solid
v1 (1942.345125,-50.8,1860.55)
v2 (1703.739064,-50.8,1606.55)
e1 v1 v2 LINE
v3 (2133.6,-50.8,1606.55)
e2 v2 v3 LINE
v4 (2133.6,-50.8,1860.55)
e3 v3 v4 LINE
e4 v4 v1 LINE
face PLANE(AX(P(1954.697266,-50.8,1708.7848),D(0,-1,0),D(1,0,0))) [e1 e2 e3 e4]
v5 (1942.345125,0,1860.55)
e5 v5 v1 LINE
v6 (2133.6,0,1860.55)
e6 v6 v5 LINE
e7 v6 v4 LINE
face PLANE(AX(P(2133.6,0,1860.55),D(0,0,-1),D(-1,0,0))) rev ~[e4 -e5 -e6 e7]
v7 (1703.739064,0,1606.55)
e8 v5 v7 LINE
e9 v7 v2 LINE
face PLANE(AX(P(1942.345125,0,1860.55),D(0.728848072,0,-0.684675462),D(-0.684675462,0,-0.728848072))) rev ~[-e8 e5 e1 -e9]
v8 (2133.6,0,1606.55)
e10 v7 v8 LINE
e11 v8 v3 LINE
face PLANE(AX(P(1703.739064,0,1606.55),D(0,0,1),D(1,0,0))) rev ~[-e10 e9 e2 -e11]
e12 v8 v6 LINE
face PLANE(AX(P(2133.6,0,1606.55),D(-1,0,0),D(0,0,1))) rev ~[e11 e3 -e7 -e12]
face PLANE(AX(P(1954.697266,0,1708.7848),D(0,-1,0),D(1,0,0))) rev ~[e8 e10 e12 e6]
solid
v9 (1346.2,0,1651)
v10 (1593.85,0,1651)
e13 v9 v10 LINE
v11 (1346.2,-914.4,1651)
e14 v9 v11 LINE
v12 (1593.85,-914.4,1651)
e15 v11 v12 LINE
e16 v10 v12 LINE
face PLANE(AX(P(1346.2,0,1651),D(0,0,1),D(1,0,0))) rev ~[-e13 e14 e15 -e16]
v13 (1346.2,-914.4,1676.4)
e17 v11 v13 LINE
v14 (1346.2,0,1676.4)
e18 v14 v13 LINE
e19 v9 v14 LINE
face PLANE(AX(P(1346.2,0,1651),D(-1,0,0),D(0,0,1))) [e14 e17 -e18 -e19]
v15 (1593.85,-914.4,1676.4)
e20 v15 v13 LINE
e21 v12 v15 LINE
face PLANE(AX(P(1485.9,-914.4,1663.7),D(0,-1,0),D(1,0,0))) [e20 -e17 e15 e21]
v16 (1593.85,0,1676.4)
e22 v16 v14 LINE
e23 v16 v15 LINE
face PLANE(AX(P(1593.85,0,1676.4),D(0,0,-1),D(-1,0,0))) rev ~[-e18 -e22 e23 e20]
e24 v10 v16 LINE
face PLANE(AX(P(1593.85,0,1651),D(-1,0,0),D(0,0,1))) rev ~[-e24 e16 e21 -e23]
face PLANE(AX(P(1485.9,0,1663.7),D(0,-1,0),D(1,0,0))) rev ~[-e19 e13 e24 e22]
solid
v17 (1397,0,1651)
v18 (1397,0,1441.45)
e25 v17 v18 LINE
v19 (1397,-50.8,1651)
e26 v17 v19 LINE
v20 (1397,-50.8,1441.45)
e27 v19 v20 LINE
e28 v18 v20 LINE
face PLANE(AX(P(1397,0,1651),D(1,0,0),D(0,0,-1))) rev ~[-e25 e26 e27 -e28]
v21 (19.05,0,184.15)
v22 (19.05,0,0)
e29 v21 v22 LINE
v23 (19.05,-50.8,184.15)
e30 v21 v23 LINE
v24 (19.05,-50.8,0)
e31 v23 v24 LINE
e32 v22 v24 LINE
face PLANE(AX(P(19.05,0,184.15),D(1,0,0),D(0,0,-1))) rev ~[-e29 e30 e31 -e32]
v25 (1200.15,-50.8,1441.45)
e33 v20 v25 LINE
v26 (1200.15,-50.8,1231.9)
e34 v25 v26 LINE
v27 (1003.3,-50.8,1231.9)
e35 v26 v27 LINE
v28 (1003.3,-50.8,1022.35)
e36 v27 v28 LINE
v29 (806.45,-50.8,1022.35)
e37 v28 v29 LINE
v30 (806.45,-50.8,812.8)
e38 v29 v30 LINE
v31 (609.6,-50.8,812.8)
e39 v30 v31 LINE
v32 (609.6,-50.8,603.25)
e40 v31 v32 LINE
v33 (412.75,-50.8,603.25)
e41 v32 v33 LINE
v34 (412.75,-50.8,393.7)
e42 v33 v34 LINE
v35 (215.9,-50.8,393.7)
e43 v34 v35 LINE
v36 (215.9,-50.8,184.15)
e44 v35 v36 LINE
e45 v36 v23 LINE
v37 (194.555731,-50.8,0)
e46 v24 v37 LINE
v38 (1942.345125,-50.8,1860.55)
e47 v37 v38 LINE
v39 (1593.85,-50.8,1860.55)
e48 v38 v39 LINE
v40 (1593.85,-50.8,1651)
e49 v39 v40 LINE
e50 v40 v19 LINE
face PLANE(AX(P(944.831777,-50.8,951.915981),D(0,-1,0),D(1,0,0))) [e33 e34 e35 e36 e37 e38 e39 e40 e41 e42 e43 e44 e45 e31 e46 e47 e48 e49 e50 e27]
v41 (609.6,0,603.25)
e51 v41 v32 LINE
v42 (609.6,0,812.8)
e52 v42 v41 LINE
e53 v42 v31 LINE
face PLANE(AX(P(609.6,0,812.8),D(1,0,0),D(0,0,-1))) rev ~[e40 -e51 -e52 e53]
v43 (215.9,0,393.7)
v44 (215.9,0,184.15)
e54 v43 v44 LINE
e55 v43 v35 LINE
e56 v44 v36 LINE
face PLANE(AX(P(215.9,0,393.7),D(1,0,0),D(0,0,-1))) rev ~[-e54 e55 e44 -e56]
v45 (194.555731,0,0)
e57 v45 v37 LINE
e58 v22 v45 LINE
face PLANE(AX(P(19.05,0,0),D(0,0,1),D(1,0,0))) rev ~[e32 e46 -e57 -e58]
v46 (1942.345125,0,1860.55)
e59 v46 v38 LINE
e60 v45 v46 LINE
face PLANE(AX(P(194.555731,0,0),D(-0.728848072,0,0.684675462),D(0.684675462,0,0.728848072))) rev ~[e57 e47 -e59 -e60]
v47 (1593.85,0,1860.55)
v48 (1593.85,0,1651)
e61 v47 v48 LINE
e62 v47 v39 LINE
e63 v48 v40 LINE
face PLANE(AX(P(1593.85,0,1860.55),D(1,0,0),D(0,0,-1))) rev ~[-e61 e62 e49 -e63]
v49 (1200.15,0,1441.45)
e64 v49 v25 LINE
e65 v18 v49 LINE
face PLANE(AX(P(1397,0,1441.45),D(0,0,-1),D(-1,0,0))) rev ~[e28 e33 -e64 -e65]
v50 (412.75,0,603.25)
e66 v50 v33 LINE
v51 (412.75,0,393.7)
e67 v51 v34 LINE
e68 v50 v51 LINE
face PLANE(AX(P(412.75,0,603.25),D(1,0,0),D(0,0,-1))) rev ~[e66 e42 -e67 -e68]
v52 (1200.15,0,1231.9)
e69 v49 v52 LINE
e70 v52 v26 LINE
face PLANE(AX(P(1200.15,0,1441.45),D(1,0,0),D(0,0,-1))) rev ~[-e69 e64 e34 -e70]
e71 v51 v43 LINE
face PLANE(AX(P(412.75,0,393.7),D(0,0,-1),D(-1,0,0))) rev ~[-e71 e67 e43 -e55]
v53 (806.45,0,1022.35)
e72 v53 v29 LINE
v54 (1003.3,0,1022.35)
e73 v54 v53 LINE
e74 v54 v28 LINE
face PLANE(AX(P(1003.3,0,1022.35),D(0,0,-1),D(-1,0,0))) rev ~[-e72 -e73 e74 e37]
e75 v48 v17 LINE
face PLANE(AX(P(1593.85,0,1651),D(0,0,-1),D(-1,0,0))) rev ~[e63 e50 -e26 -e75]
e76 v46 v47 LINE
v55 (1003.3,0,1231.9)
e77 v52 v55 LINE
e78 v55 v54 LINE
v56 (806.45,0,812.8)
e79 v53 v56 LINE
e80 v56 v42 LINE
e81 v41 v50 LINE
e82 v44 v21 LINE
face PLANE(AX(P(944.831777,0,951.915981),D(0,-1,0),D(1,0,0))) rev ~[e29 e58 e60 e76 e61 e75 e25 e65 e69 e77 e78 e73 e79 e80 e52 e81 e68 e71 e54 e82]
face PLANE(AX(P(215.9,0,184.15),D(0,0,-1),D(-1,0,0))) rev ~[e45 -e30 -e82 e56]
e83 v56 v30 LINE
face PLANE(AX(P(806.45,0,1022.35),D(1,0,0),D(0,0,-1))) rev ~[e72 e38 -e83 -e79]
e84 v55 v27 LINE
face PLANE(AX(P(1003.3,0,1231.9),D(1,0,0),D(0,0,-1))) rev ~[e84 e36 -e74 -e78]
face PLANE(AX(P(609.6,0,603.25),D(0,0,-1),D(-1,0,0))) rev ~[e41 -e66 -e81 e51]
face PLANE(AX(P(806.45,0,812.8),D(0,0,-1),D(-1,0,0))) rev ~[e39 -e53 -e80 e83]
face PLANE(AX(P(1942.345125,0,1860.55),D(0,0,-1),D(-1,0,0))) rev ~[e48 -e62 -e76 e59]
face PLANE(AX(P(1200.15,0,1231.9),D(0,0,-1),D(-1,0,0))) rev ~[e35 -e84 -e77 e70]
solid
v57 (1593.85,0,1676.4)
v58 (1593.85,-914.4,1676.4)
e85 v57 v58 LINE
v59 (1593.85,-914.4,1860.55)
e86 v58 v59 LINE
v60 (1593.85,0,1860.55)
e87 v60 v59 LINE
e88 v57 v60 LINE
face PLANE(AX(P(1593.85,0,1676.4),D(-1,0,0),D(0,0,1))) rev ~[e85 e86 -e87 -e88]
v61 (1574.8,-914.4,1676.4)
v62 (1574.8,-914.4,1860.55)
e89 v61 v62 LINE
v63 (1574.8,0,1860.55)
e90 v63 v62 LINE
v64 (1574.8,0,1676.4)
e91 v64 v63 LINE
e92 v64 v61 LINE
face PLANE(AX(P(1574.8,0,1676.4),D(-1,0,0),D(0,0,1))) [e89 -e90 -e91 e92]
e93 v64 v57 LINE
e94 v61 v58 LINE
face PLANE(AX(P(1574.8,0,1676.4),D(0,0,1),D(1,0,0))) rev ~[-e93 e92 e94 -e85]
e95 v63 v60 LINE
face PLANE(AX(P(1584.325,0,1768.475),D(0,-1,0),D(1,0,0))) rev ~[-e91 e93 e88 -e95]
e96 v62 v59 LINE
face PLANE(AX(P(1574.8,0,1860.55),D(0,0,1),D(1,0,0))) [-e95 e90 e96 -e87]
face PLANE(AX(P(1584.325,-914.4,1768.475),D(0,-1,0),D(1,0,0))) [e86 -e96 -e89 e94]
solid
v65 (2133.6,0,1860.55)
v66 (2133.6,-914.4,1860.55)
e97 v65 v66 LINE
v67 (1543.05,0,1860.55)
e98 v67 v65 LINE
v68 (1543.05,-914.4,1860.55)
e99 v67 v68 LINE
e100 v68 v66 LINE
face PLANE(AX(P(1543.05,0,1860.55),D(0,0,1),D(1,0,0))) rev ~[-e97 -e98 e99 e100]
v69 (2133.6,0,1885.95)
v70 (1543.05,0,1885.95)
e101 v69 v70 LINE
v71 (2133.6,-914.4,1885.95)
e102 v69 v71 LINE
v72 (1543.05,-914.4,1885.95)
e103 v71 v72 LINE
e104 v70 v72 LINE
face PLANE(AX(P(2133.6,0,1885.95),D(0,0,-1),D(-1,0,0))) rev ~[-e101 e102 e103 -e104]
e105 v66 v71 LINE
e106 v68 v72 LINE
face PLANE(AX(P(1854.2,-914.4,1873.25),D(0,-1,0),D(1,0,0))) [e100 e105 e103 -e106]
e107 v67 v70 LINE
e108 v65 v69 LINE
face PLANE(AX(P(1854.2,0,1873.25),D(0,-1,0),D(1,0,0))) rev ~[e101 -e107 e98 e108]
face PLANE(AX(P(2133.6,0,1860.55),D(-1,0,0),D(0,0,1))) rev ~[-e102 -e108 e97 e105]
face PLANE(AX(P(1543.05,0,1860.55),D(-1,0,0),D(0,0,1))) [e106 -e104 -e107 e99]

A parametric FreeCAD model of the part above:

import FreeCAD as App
import Part
import Sketcher

V = App.Vector
Q = App.Units.Quantity

doc = App.newDocument("Part")
body = doc.addObject("PartDesign::Body", "Body")

# Sketch on XZ plane
sketch1 = body.newObject("Sketcher::SketchObject", "Sketch")
sketch1.AttachmentSupport = (doc.getObject("XZ_Plane"), [""])
sketch1.MapMode = "FlatFace"
sketch1.addGeometry([
    Part.LineSegment(V(19, 184, 0), V(19, 0, 0)),  # 0
    Part.LineSegment(V(19, 0, 0), V(195, 0, 0)),  # 1
    Part.LineSegment(V(195, 0, 0), V(1942, 1861, 0)),  # 2
    Part.LineSegment(V(1942, 1861, 0), V(1594, 1861, 0)),  # 3
    Part.LineSegment(V(1594, 1861, 0), V(1594, 1651, 0)),  # 4
    Part.LineSegment(V(1594, 1651, 0), V(1397, 1651, 0)),  # 5
    Part.LineSegment(V(1397, 1651, 0), V(1397, 1441, 0)),  # 6
    Part.LineSegment(V(1397, 1441, 0), V(1200, 1441, 0)),  # 7
    Part.LineSegment(V(1200, 1441, 0), V(1200, 1232, 0)),  # 8
    Part.LineSegment(V(1200, 1232, 0), V(1003, 1232, 0)),  # 9
    Part.LineSegment(V(1003, 1232, 0), V(1003, 1022, 0)),  # 10
    Part.LineSegment(V(1003, 1022, 0), V(806, 1022, 0)),  # 11
    Part.LineSegment(V(806, 1022, 0), V(806, 813, 0)),  # 12
    Part.LineSegment(V(806, 813, 0), V(610, 813, 0)),  # 13
    Part.LineSegment(V(610, 813, 0), V(610, 603, 0)),  # 14
    Part.LineSegment(V(610, 603, 0), V(413, 603, 0)),  # 15
    Part.LineSegment(V(413, 603, 0), V(413, 394, 0)),  # 16
    Part.LineSegment(V(413, 394, 0), V(216, 394, 0)),  # 17
    Part.LineSegment(V(216, 394, 0), V(216, 184, 0)),  # 18
    Part.LineSegment(V(216, 184, 0), V(19, 184, 0)),  # 19
], False)
sketch1.addConstraint([
    Sketcher.Constraint("Coincident", 0, 2, 1, 1),
    Sketcher.Constraint("Coincident", 1, 2, 2, 1),
    Sketcher.Constraint("Coincident", 2, 2, 3, 1),
    Sketcher.Constraint("Coincident", 3, 2, 4, 1),
    Sketcher.Constraint("Coincident", 4, 2, 5, 1),
    Sketcher.Constraint("Coincident", 5, 2, 6, 1),
    Sketcher.Constraint("Coincident", 6, 2, 7, 1),
    Sketcher.Constraint("Coincident", 7, 2, 8, 1),
    Sketcher.Constraint("Coincident", 8, 2, 9, 1),
    Sketcher.Constraint("Coincident", 9, 2, 10, 1),
    Sketcher.Constraint("Coincident", 10, 2, 11, 1),
    Sketcher.Constraint("Coincident", 11, 2, 12, 1),
    Sketcher.Constraint("Coincident", 12, 2, 13, 1),
    Sketcher.Constraint("Coincident", 13, 2, 14, 1),
    Sketcher.Constraint("Coincident", 14, 2, 15, 1),
    Sketcher.Constraint("Coincident", 15, 2, 16, 1),
    Sketcher.Constraint("Coincident", 16, 2, 17, 1),
    Sketcher.Constraint("Coincident", 17, 2, 18, 1),
    Sketcher.Constraint("Coincident", 18, 2, 19, 1),
    Sketcher.Constraint("Coincident", 19, 2, 0, 1),
    Sketcher.Constraint("Vertical", 0),
    Sketcher.Constraint("Horizontal", 1),
    Sketcher.Constraint("Horizontal", 3),
    Sketcher.Constraint("Vertical", 4),
    Sketcher.Constraint("Horizontal", 5),
    Sketcher.Constraint("Vertical", 6),
    Sketcher.Constraint("Horizontal", 7),
    Sketcher.Constraint("Vertical", 8),
    Sketcher.Constraint("Horizontal", 9),
    Sketcher.Constraint("Vertical", 10),
    Sketcher.Constraint("Horizontal", 11),
    Sketcher.Constraint("Vertical", 12),
    Sketcher.Constraint("Horizontal", 13),
    Sketcher.Constraint("Vertical", 14),
    Sketcher.Constraint("Horizontal", 15),
    Sketcher.Constraint("Vertical", 16),
    Sketcher.Constraint("Horizontal", 17),
    Sketcher.Constraint("Vertical", 18),
    Sketcher.Constraint("Horizontal", 19),
    Sketcher.Constraint("PointOnObject", 0, 2, -1),
    Sketcher.Constraint("Equal", 5, 7),
    Sketcher.Constraint("Equal", 7, 9),
    Sketcher.Constraint("Equal", 9, 11),
    Sketcher.Constraint("Equal", 11, 13),
    Sketcher.Constraint("Equal", 13, 15),
    Sketcher.Constraint("Equal", 15, 17),
    Sketcher.Constraint("Equal", 17, 19),
    Sketcher.Constraint("Equal", 4, 6),
    Sketcher.Constraint("Equal", 6, 8),
    Sketcher.Constraint("Equal", 8, 10),
    Sketcher.Constraint("Equal", 10, 12),
    Sketcher.Constraint("Equal", 12, 14),
    Sketcher.Constraint("Equal", 14, 16),
    Sketcher.Constraint("Equal", 16, 18),
    Sketcher.Constraint("DistanceY", -1, 1, 4, 2, Q("65 in")),
    Sketcher.Constraint("DistanceX", -1, 1, 5, 2, Q("55 in")),
    Sketcher.Constraint("DistanceY", -1, 1, 12, 2, Q("32 in")),
    Sketcher.Constraint("DistanceX", -1, 1, 13, 2, Q("24 in")),
    Sketcher.Constraint("DistanceX", 1, 1, 1, 2, 175.505731),
    Sketcher.Constraint("Distance", 2, 2552.726791),
])
pad1 = body.newObject("PartDesign::Pad", "Pad")
pad1.Profile = sketch1
pad1.Length = Q("2 in")
body2 = doc.addObject("PartDesign::Body", "Body001")

# Sketch on XZ plane
sketch2 = body2.newObject("Sketcher::SketchObject", "Sketch001")
sketch2.AttachmentSupport = (doc.getObject("XZ_Plane001"), [""])
sketch2.MapMode = "FlatFace"
sketch2.addGeometry([
    Part.LineSegment(V(1594, 1651, 0), V(1594, 1676, 0)),
    Part.LineSegment(V(1594, 1676, 0), V(1346, 1676, 0)),
    Part.LineSegment(V(1346, 1676, 0), V(1346, 1651, 0)),
    Part.LineSegment(V(1346, 1651, 0), V(1594, 1651, 0)),
], False)
sketch2.addConstraint([
    Sketcher.Constraint("Coincident", 0, 2, 1, 1),
    Sketcher.Constraint("Coincident", 1, 2, 2, 1),
    Sketcher.Constraint("Coincident", 2, 2, 3, 1),
    Sketcher.Constraint("Coincident", 3, 2, 0, 1),
    Sketcher.Constraint("Vertical", 0),
    Sketcher.Constraint("Horizontal", 1),
    Sketcher.Constraint("Vertical", 2),
    Sketcher.Constraint("Horizontal", 3),
    Sketcher.Constraint("DistanceY", 0, 1, 0, 2, Q("1 in")),
    Sketcher.Constraint("DistanceY", -1, 1, 0, 2, Q("66 in")),
    Sketcher.Constraint("DistanceX", -1, 1, 1, 2, Q("53 in")),
    Sketcher.Constraint("DistanceX", 1, 2, 1, 1, Q("9.75 in")),
])
pad2 = body2.newObject("PartDesign::Pad", "Pad001")
pad2.Profile = sketch2
pad2.Length = Q("36 in")
body3 = doc.addObject("PartDesign::Body", "Body002")

# Sketch on XZ plane
sketch3 = body3.newObject("Sketcher::SketchObject", "Sketch002")
sketch3.AttachmentSupport = (doc.getObject("XZ_Plane002"), [""])
sketch3.MapMode = "FlatFace"
sketch3.addGeometry([
    Part.LineSegment(V(2134, 1861, 0), V(2134, 1886, 0)),
    Part.LineSegment(V(2134, 1886, 0), V(1543, 1886, 0)),
    Part.LineSegment(V(1543, 1886, 0), V(1543, 1861, 0)),
    Part.LineSegment(V(1543, 1861, 0), V(2134, 1861, 0)),
], False)
sketch3.addConstraint([
    Sketcher.Constraint("Coincident", 0, 2, 1, 1),
    Sketcher.Constraint("Coincident", 1, 2, 2, 1),
    Sketcher.Constraint("Coincident", 2, 2, 3, 1),
    Sketcher.Constraint("Coincident", 3, 2, 0, 1),
    Sketcher.Constraint("Vertical", 0),
    Sketcher.Constraint("Horizontal", 1),
    Sketcher.Constraint("Vertical", 2),
    Sketcher.Constraint("Horizontal", 3),
    Sketcher.Constraint("DistanceY", 0, 1, 0, 2, Q("1 in")),
    Sketcher.Constraint("DistanceX", -1, 1, 0, 2, Q("84 in")),
    Sketcher.Constraint("DistanceX", 1, 2, 1, 1, Q("23.25 in")),
    Sketcher.Constraint("DistanceY", -1, 1, 0, 2, Q("74.25 in")),
])
pad3 = body3.newObject("PartDesign::Pad", "Pad002")
pad3.Profile = sketch3
pad3.Length = Q("36 in")
body4 = doc.addObject("PartDesign::Body", "Body003")

# Sketch on XZ plane
sketch4 = body4.newObject("Sketcher::SketchObject", "Sketch003")
sketch4.AttachmentSupport = (doc.getObject("XZ_Plane003"), [""])
sketch4.MapMode = "FlatFace"
sketch4.addGeometry([
    Part.LineSegment(V(1575, 1861, 0), V(1575, 1676, 0)),
    Part.LineSegment(V(1575, 1676, 0), V(1594, 1676, 0)),
    Part.LineSegment(V(1594, 1676, 0), V(1594, 1861, 0)),
    Part.LineSegment(V(1594, 1861, 0), V(1575, 1861, 0)),
], False)
sketch4.addConstraint([
    Sketcher.Constraint("Coincident", 0, 2, 1, 1),
    Sketcher.Constraint("Coincident", 1, 2, 2, 1),
    Sketcher.Constraint("Coincident", 2, 2, 3, 1),
    Sketcher.Constraint("Coincident", 3, 2, 0, 1),
    Sketcher.Constraint("Vertical", 0),
    Sketcher.Constraint("Horizontal", 1),
    Sketcher.Constraint("Vertical", 2),
    Sketcher.Constraint("Horizontal", 3),
    Sketcher.Constraint("DistanceX", -1, 1, 0, 2, Q("62 in")),
    Sketcher.Constraint("DistanceY", -1, 1, 0, 2, Q("66 in")),
    Sketcher.Constraint("DistanceX", 1, 1, 1, 2, Q("0.75 in")),
    Sketcher.Constraint("DistanceY", 0, 2, 0, 1, Q("7.25 in")),
])
pad4 = body4.newObject("PartDesign::Pad", "Pad003")
pad4.Profile = sketch4
pad4.Length = Q("36 in")
body5 = doc.addObject("PartDesign::Body", "Body004")

# Sketch on XZ plane
sketch5 = body5.newObject("Sketcher::SketchObject", "Sketch004")
sketch5.AttachmentSupport = (doc.getObject("XZ_Plane004"), [""])
sketch5.MapMode = "FlatFace"
sketch5.addGeometry([
    Part.LineSegment(V(1942, 1861, 0), V(1704, 1607, 0)),
    Part.LineSegment(V(1704, 1607, 0), V(2134, 1607, 0)),
    Part.LineSegment(V(2134, 1607, 0), V(2134, 1861, 0)),
    Part.LineSegment(V(2134, 1861, 0), V(1942, 1861, 0)),
], False)
sketch5.addConstraint([
    Sketcher.Constraint("Coincident", 0, 2, 1, 1),
    Sketcher.Constraint("Coincident", 1, 2, 2, 1),
    Sketcher.Constraint("Coincident", 2, 2, 3, 1),
    Sketcher.Constraint("Coincident", 3, 2, 0, 1),
    Sketcher.Constraint("Horizontal", 1),
    Sketcher.Constraint("Vertical", 2),
    Sketcher.Constraint("Horizontal", 3),
    Sketcher.Constraint("DistanceY", 2, 1, 2, 2, Q("10 in")),
    Sketcher.Constraint("DistanceX", -1, 1, 1, 2, Q("84 in")),
    Sketcher.Constraint("DistanceY", -1, 1, 0, 2, Q("63.25 in")),
    Sketcher.Constraint("DistanceX", 1, 1, 1, 2, 429.860936),
    Sketcher.Constraint("DistanceX", 3, 2, 3, 1, 191.254875),
])
pad5 = body5.newObject("PartDesign::Pad", "Pad004")
pad5.Profile = sketch5
pad5.Length = Q("2 in")

doc.recompute()
